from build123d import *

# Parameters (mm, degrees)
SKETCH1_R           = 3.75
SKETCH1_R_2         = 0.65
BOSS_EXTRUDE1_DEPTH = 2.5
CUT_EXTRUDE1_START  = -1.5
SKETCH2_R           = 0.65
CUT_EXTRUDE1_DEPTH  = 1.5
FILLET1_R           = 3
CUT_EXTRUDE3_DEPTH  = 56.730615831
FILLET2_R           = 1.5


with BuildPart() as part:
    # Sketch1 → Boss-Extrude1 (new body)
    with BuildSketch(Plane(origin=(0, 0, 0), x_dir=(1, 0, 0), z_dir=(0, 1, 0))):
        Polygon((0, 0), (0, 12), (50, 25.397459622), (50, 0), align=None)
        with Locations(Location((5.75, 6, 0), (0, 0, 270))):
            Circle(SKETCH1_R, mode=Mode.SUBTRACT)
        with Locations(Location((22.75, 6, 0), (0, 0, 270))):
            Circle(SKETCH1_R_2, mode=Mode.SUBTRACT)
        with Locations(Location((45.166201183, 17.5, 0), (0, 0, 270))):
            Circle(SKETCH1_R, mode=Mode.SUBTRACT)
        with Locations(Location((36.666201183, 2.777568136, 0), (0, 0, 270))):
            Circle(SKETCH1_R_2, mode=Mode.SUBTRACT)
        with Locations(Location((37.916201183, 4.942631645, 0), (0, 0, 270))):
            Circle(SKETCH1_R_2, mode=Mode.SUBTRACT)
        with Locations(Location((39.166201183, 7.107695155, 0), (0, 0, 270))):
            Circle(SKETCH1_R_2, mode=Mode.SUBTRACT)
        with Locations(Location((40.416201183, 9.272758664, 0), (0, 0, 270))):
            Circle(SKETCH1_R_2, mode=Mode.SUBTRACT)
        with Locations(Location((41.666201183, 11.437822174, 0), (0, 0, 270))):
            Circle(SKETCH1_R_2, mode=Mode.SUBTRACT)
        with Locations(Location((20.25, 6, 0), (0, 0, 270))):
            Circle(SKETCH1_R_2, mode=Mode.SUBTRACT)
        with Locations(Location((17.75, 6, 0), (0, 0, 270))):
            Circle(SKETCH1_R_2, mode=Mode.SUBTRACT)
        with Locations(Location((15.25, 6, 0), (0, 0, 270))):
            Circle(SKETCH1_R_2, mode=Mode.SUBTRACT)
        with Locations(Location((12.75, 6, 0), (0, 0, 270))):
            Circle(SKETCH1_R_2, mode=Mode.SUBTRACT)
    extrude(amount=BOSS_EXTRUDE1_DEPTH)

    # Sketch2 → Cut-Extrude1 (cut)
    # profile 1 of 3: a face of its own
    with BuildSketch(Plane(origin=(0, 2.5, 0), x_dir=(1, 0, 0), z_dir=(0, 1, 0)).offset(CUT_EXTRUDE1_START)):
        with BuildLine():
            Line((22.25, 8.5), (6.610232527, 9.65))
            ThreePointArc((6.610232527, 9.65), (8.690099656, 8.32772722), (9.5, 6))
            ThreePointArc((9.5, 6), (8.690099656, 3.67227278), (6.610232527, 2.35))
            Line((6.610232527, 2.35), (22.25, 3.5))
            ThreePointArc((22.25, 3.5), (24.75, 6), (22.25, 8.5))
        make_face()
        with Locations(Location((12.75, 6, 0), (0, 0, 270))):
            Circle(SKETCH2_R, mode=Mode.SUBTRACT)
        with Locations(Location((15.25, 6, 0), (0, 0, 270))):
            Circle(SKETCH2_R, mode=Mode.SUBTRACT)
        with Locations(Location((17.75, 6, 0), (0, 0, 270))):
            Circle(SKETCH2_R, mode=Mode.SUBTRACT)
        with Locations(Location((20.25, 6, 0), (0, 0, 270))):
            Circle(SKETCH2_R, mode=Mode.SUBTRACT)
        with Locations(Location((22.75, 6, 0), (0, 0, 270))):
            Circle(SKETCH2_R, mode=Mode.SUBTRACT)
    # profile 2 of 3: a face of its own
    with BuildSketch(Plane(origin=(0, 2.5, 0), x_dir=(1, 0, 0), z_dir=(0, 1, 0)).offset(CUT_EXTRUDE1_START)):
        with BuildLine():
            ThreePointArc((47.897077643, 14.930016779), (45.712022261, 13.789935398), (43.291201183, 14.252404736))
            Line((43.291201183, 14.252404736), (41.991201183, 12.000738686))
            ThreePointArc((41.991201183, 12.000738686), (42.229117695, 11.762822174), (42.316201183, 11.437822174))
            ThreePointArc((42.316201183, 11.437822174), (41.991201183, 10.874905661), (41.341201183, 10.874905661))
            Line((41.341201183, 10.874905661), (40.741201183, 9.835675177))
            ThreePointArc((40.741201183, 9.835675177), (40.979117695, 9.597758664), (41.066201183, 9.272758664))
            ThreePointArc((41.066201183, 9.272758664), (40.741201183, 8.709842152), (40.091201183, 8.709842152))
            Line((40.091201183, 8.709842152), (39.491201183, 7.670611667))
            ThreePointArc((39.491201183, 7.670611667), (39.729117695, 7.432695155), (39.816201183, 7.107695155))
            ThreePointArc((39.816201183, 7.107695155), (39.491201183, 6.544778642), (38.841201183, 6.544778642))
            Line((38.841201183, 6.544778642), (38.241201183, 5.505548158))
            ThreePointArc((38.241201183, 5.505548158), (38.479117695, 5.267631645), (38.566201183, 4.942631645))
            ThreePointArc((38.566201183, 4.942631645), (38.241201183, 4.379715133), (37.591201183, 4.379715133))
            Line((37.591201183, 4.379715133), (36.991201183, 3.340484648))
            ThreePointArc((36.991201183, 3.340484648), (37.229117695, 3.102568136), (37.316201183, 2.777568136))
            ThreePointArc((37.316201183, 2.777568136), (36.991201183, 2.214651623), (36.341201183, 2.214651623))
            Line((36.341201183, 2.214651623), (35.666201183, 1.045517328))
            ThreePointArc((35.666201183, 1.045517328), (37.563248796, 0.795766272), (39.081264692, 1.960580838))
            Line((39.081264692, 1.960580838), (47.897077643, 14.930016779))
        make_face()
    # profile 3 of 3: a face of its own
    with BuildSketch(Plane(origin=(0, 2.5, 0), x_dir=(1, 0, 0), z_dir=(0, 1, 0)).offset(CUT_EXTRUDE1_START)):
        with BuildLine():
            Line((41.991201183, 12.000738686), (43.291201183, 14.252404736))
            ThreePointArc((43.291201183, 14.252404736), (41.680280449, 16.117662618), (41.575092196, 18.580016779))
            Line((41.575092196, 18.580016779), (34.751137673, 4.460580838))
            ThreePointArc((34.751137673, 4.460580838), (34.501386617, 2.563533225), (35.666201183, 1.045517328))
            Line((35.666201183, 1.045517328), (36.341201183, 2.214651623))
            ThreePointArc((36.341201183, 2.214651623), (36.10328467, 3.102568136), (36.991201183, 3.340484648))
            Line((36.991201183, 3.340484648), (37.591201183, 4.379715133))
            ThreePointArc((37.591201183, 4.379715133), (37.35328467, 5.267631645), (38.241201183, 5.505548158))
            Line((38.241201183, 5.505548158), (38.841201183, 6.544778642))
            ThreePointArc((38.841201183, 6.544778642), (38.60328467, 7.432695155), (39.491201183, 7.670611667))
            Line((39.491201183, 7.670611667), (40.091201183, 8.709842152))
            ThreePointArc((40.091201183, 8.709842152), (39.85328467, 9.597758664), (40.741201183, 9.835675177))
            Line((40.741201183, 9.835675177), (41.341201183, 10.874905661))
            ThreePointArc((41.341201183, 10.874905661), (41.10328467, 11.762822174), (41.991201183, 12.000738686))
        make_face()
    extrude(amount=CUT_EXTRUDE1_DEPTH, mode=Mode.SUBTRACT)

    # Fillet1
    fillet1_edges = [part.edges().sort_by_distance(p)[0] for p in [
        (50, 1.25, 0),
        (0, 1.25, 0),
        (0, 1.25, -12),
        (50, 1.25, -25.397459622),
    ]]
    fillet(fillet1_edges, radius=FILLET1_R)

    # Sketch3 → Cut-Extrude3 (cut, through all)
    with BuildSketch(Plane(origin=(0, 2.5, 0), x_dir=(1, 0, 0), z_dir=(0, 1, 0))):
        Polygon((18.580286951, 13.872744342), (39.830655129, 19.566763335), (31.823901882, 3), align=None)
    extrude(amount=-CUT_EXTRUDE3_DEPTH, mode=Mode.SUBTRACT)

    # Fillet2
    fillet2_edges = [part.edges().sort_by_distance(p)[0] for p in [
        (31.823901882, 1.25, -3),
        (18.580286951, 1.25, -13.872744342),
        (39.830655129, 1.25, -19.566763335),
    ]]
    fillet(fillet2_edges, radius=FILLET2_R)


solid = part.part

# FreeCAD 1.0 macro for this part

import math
import FreeCAD as App
import Part
import Sketcher

V = App.Vector
Q = App.Units.Quantity


def edges_at(feature, points):
    """Names of the edges that pass closest to the given points."""
    edges = feature.Shape.Edges
    near = lambda p: min(range(len(edges)), key=lambda i: edges[i].distToShape(Part.Vertex(*p))[0])
    return sorted({f"Edge{near(p) + 1}" for p in points})

doc = App.newDocument("Part")
body = doc.addObject("PartDesign::Body", "Body")

# Sketch on XZ plane
sketch1 = body.newObject("Sketcher::SketchObject", "Sketch")
sketch1.AttachmentSupport = (doc.getObject("XZ_Plane"), [""])
sketch1.MapMode = "FlatFace"
sketch1.addGeometry(Part.LineSegment(V(0, -12, 0), V(0, 0, 0)), False)
sketch1.addGeometry(Part.LineSegment(V(0, 0, 0), V(50, 0, 0)), False)
sketch1.addGeometry(Part.LineSegment(V(50, 0, 0), V(50, -25.4, 0)), False)
sketch1.addGeometry(Part.LineSegment(V(50, -25.4, 0), V(0, -12, 0)), False)
sketch1.addGeometry(Part.Circle(V(37.9, -4.9, 0), V(0, 0, 1), 0.7), False)
sketch1.addGeometry(Part.Circle(V(36.7, -2.8, 0), V(0, 0, 1), 0.7), False)
sketch1.addGeometry(Part.Circle(V(39.2, -7.1, 0), V(0, 0, 1), 0.7), False)
sketch1.addGeometry(Part.Circle(V(40.4, -9.3, 0), V(0, 0, 1), 0.7), False)
sketch1.addGeometry(Part.Circle(V(41.7, -11.4, 0), V(0, 0, 1), 0.7), False)
sketch1.addGeometry(Part.Circle(V(22.8, -6, 0), V(0, 0, 1), 0.7), False)
sketch1.addGeometry(Part.Circle(V(20.2, -6, 0), V(0, 0, 1), 0.7), False)
sketch1.addGeometry(Part.Circle(V(17.8, -6, 0), V(0, 0, 1), 0.7), False)
sketch1.addGeometry(Part.Circle(V(15.2, -6, 0), V(0, 0, 1), 0.7), False)
sketch1.addGeometry(Part.Circle(V(12.8, -6, 0), V(0, 0, 1), 0.7), False)
sketch1.addGeometry(Part.Circle(V(5.8, -6, 0), V(0, 0, 1), 3.8), False)
sketch1.addGeometry(Part.Circle(V(45.2, -17.5, 0), V(0, 0, 1), 3.8), False)
sketch1.addConstraint(Sketcher.Constraint("Coincident", 0, 2, 1, 1))
sketch1.addConstraint(Sketcher.Constraint("Coincident", 1, 2, 2, 1))
sketch1.addConstraint(Sketcher.Constraint("Coincident", 2, 2, 3, 1))
sketch1.addConstraint(Sketcher.Constraint("Coincident", 3, 2, 0, 1))
sketch1.addConstraint(Sketcher.Constraint("Vertical", 0))
sketch1.addConstraint(Sketcher.Constraint("Horizontal", 1))
sketch1.addConstraint(Sketcher.Constraint("Vertical", 2))
sketch1.addConstraint(Sketcher.Constraint("Coincident", 0, 2, -1, 1))
sketch1.addConstraint(Sketcher.Constraint("Equal", 4, 5))
sketch1.addConstraint(Sketcher.Constraint("Equal", 5, 6))
sketch1.addConstraint(Sketcher.Constraint("Equal", 6, 7))
sketch1.addConstraint(Sketcher.Constraint("Equal", 7, 8))
sketch1.addConstraint(Sketcher.Constraint("Equal", 8, 9))
sketch1.addConstraint(Sketcher.Constraint("Equal", 9, 10))
sketch1.addConstraint(Sketcher.Constraint("Equal", 10, 11))
sketch1.addConstraint(Sketcher.Constraint("Equal", 11, 12))
sketch1.addConstraint(Sketcher.Constraint("Equal", 12, 13))
sketch1.addConstraint(Sketcher.Constraint("Equal", 14, 15))
sketch1.addConstraint(Sketcher.Constraint("Horizontal", 9, 3, 10, 3))
sketch1.addConstraint(Sketcher.Constraint("Horizontal", 10, 3, 11, 3))
sketch1.addConstraint(Sketcher.Constraint("Horizontal", 11, 3, 12, 3))
sketch1.addConstraint(Sketcher.Constraint("Horizontal", 12, 3, 13, 3))
sketch1.addConstraint(Sketcher.Constraint("Horizontal", 13, 3, 14, 3))
sketch1.addConstraint(Sketcher.Constraint("Diameter", 4, 1.3))
sketch1.addConstraint(Sketcher.Constraint("Diameter", 14, 7.5))
sketch1.addConstraint(Sketcher.Constraint("DistanceX", 1, 1, 1, 2, 50.0))
sketch1.addConstraint(Sketcher.Constraint("DistanceY", 0, 1, 0, 2, 12.0))
sketch1.addConstraint(Sketcher.Constraint("Angle", 3, Q("165 deg")))
sketch1.addConstraint(Sketcher.Constraint("DistanceY", 9, 3, -1, 1, 6.0))
sketch1.addConstraint(Sketcher.Constraint("DistanceX", 5, 3, 8, 3, 5.0))
sketch1.addConstraint(Sketcher.Constraint("DistanceX", 11, 3, 9, 3, 5.0))
sketch1.addConstraint(Sketcher.Constraint("DistanceX", 12, 3, 10, 3, 5.0))
sketch1.addConstraint(Sketcher.Constraint("DistanceX", 13, 3, 11, 3, 5.0))
sketch1.addConstraint(Sketcher.Constraint("DistanceX", 14, 3, 13, 3, 7.0))
sketch1.addConstraint(Sketcher.Constraint("DistanceX", 6, 3, 15, 3, 6.0))
sketch1.addConstraint(Sketcher.Constraint("DistanceY", 15, 3, -1, 1, 17.5))
sketch1.addConstraint(Sketcher.Constraint("DistanceX", 5, 3, 6, 3, 2.5))
sketch1.addConstraint(Sketcher.Constraint("DistanceX", 4, 3, 7, 3, 2.5))
sketch1.addConstraint(Sketcher.Constraint("DistanceX", 10, 3, 9, 3, 2.5))
sketch1.addConstraint(Sketcher.Constraint("DistanceX", -1, 1, 9, 3, 22.75))
sketch1.addConstraint(Sketcher.Constraint("DistanceX", 5, 3, 4, 3, 1.25))
sketch1.addConstraint(Sketcher.Constraint("DistanceX", -1, 1, 4, 3, 37.916201))
sketch1.addConstraint(Sketcher.Constraint("DistanceY", 2, 2, 7, 3, 16.124701))
sketch1.addConstraint(Sketcher.Constraint("DistanceY", 4, 3, -1, 1, 4.942632))
sketch1.addConstraint(Sketcher.Constraint("DistanceY", 5, 3, -1, 1, 2.777568))
sketch1.addConstraint(Sketcher.Constraint("DistanceY", 8, 3, 4, 3, 6.495191))
sketch1.addConstraint(Sketcher.Constraint("DistanceY", 6, 3, -1, 1, 7.107695))
pad1 = body.newObject("PartDesign::Pad", "Pad")
pad1.Profile = sketch1
pad1.Length = 2.5
pad1.Reversed = True

# Sketch on XZ plane
sketch2 = body.newObject("Sketcher::SketchObject", "Sketch001")
sketch2.AttachmentSupport = (doc.getObject("XZ_Plane"), [""])
sketch2.MapMode = "FlatFace"
sketch2.AttachmentOffset = App.Placement(V(0, 0, -1), App.Rotation())
sketch2.addGeometry(Part.LineSegment(V(22.2, -8.5, 0), V(6.6, -9.7, 0)), False)
sketch2.addGeometry(Part.ArcOfCircle(Part.Circle(V(5.7, -6, 0), V(0, 0, 1), 3.8), math.radians(-77), math.radians(0)), False)
sketch2.addGeometry(Part.ArcOfCircle(Part.Circle(V(5.7, -6, 0), V(0, 0, 1), 3.8), math.radians(0), math.radians(77)), False)
sketch2.addGeometry(Part.LineSegment(V(6.6, -2.4, 0), V(22.2, -3.5, 0)), False)
sketch2.addGeometry(Part.ArcOfCircle(Part.Circle(V(22.2, -6, 0), V(0, 0, 1), 2.5), math.radians(-90), math.radians(90)), False)
sketch2.addGeometry(Part.Circle(V(12.8, -6, 0), V(0, 0, 1), 0.7), False)
sketch2.addGeometry(Part.Circle(V(15.2, -6, 0), V(0, 0, 1), 0.7), False)
sketch2.addGeometry(Part.Circle(V(17.8, -6, 0), V(0, 0, 1), 0.7), False)
sketch2.addGeometry(Part.Circle(V(20.2, -6, 0), V(0, 0, 1), 0.7), False)
sketch2.addGeometry(Part.Circle(V(22.8, -6, 0), V(0, 0, 1), 0.7), False)
sketch2.addGeometry(Part.ArcOfCircle(Part.Circle(V(45.2, -17.5, 0), V(0, 0, 1), 3.7), math.radians(43), math.radians(120)), False)
sketch2.addGeometry(Part.ArcOfCircle(Part.Circle(V(45.2, -17.5, 0), V(0, 0, 1), 3.7), math.radians(120), math.radians(197)), False)
sketch2.addGeometry(Part.LineSegment(V(41.6, -18.6, 0), V(34.8, -4.5, 0)), False)
sketch2.addGeometry(Part.ArcOfCircle(Part.Circle(V(36.9, -3.2, 0), V(0, 0, 1), 2.5), math.radians(120), math.radians(210)), False)
sketch2.addGeometry(Part.ArcOfCircle(Part.Circle(V(36.9, -3.2, 0), V(0, 0, 1), 2.5), math.radians(30), math.radians(120)), False)
sketch2.addGeometry(Part.LineSegment(V(39.1, -2, 0), V(47.9, -14.9, 0)), False)
sketch2.addGeometry(Part.ArcOfCircle(Part.Circle(V(41.7, -11.4, 0), V(0, 0, 1), 0.7), math.radians(-60), math.radians(0)), False)
sketch2.addGeometry(Part.ArcOfCircle(Part.Circle(V(41.7, -11.4, 0), V(0, 0, 1), 0.7), math.radians(0), math.radians(120)), False)
sketch2.addGeometry(Part.ArcOfCircle(Part.Circle(V(41.7, -11.4, 0), V(0, 0, 1), 0.7), math.radians(120), math.radians(300)), False)
sketch2.addGeometry(Part.ArcOfCircle(Part.Circle(V(40.4, -9.3, 0), V(0, 0, 1), 0.7), math.radians(-60), math.radians(0)), False)
sketch2.addGeometry(Part.ArcOfCircle(Part.Circle(V(40.4, -9.3, 0), V(0, 0, 1), 0.7), math.radians(0), math.radians(120)), False)
sketch2.addGeometry(Part.ArcOfCircle(Part.Circle(V(40.4, -9.3, 0), V(0, 0, 1), 0.7), math.radians(120), math.radians(300)), False)
sketch2.addGeometry(Part.ArcOfCircle(Part.Circle(V(39.2, -7.1, 0), V(0, 0, 1), 0.7), math.radians(-60), math.radians(0)), False)
sketch2.addGeometry(Part.ArcOfCircle(Part.Circle(V(39.2, -7.1, 0), V(0, 0, 1), 0.7), math.radians(0), math.radians(120)), False)
sketch2.addGeometry(Part.ArcOfCircle(Part.Circle(V(39.2, -7.1, 0), V(0, 0, 1), 0.7), math.radians(120), math.radians(300)), False)
sketch2.addGeometry(Part.ArcOfCircle(Part.Circle(V(37.9, -4.9, 0), V(0, 0, 1), 0.7), math.radians(-60), math.radians(0)), False)
sketch2.addGeometry(Part.ArcOfCircle(Part.Circle(V(37.9, -4.9, 0), V(0, 0, 1), 0.7), math.radians(0), math.radians(120)), False)
sketch2.addGeometry(Part.ArcOfCircle(Part.Circle(V(37.9, -4.9, 0), V(0, 0, 1), 0.7), math.radians(120), math.radians(300)), False)
sketch2.addGeometry(Part.ArcOfCircle(Part.Circle(V(36.7, -2.8, 0), V(0, 0, 1), 0.7), math.radians(-60), math.radians(0)), False)
sketch2.addGeometry(Part.ArcOfCircle(Part.Circle(V(36.7, -2.8, 0), V(0, 0, 1), 0.7), math.radians(0), math.radians(120)), False)
sketch2.addGeometry(Part.ArcOfCircle(Part.Circle(V(36.7, -2.8, 0), V(0, 0, 1), 0.7), math.radians(120), math.radians(300)), False)
sketch2.addConstraint(Sketcher.Constraint("Coincident", 0, 2, 1, 1))
sketch2.addConstraint(Sketcher.Constraint("Tangent", 1, 2, 2, 1))
sketch2.addConstraint(Sketcher.Constraint("Coincident", 2, 2, 3, 1))
sketch2.addConstraint(Sketcher.Constraint("Coincident", 3, 2, 4, 2))
sketch2.addConstraint(Sketcher.Constraint("Coincident", 4, 1, 0, 1))
sketch2.addConstraint(Sketcher.Constraint("Tangent", 10, 2, 11, 1))
sketch2.addConstraint(Sketcher.Constraint("Coincident", 11, 2, 12, 1))
sketch2.addConstraint(Sketcher.Constraint("Coincident", 12, 2, 13, 2))
sketch2.addConstraint(Sketcher.Constraint("Tangent", 13, 1, 14, 2))
sketch2.addConstraint(Sketcher.Constraint("Coincident", 14, 1, 15, 1))
sketch2.addConstraint(Sketcher.Constraint("Coincident", 15, 2, 10, 1))
sketch2.addConstraint(Sketcher.Constraint("Tangent", 16, 2, 17, 1))
sketch2.addConstraint(Sketcher.Constraint("Tangent", 17, 2, 18, 1))
sketch2.addConstraint(Sketcher.Constraint("Tangent", 18, 2, 16, 1))
sketch2.addConstraint(Sketcher.Constraint("Tangent", 19, 2, 20, 1))
sketch2.addConstraint(Sketcher.Constraint("Tangent", 20, 2, 21, 1))
sketch2.addConstraint(Sketcher.Constraint("Tangent", 21, 2, 19, 1))
sketch2.addConstraint(Sketcher.Constraint("Tangent", 22, 2, 23, 1))
sketch2.addConstraint(Sketcher.Constraint("Tangent", 23, 2, 24, 1))
sketch2.addConstraint(Sketcher.Constraint("Tangent", 24, 2, 22, 1))
sketch2.addConstraint(Sketcher.Constraint("Tangent", 25, 2, 26, 1))
sketch2.addConstraint(Sketcher.Constraint("Tangent", 26, 2, 27, 1))
sketch2.addConstraint(Sketcher.Constraint("Tangent", 27, 2, 25, 1))
sketch2.addConstraint(Sketcher.Constraint("Tangent", 28, 2, 29, 1))
sketch2.addConstraint(Sketcher.Constraint("Tangent", 29, 2, 30, 1))
sketch2.addConstraint(Sketcher.Constraint("Tangent", 30, 2, 28, 1))
sketch2.addConstraint(Sketcher.Constraint("Equal", 1, 2))
sketch2.addConstraint(Sketcher.Constraint("Equal", 5, 6))
sketch2.addConstraint(Sketcher.Constraint("Equal", 6, 7))
sketch2.addConstraint(Sketcher.Constraint("Equal", 7, 8))
sketch2.addConstraint(Sketcher.Constraint("Equal", 8, 9))
sketch2.addConstraint(Sketcher.Constraint("Equal", 2, 10))
sketch2.addConstraint(Sketcher.Constraint("Equal", 10, 11))
sketch2.addConstraint(Sketcher.Constraint("Equal", 4, 13))
sketch2.addConstraint(Sketcher.Constraint("Equal", 13, 14))
sketch2.addConstraint(Sketcher.Constraint("Equal", 9, 16))
sketch2.addConstraint(Sketcher.Constraint("Equal", 18, 19))
sketch2.addConstraint(Sketcher.Constraint("Equal", 21, 22))
sketch2.addConstraint(Sketcher.Constraint("Equal", 24, 25))
sketch2.addConstraint(Sketcher.Constraint("Equal", 27, 28))
sketch2.addConstraint(Sketcher.Constraint("Horizontal", 2, 3, 4, 3))
sketch2.addConstraint(Sketcher.Constraint("Horizontal", 4, 3, 5, 3))
sketch2.addConstraint(Sketcher.Constraint("Horizontal", 5, 3, 6, 3))
sketch2.addConstraint(Sketcher.Constraint("Horizontal", 6, 3, 7, 3))
sketch2.addConstraint(Sketcher.Constraint("Horizontal", 7, 3, 8, 3))
sketch2.addConstraint(Sketcher.Constraint("Horizontal", 8, 3, 9, 3))
sketch2.addConstraint(Sketcher.Constraint("Horizontal", 9, 3, 1, 2))
sketch2.addConstraint(Sketcher.Constraint("Horizontal", 18, 3, 16, 2))
sketch2.addConstraint(Sketcher.Constraint("Horizontal", 21, 3, 19, 2))
sketch2.addConstraint(Sketcher.Constraint("Horizontal", 24, 3, 22, 2))
sketch2.addConstraint(Sketcher.Constraint("Horizontal", 27, 3, 25, 2))
sketch2.addConstraint(Sketcher.Constraint("Horizontal", 30, 3, 28, 2))
sketch2.addConstraint(Sketcher.Constraint("Vertical", 0, 2, 2, 2))
sketch2.addConstraint(Sketcher.Constraint("Vertical", 4, 3, 3, 2))
sketch2.addConstraint(Sketcher.Constraint("Vertical", 3, 2, 4, 1))
sketch2.addConstraint(Sketcher.Constraint("Equal", 3, 12))
sketch2.addConstraint(Sketcher.Constraint("Equal", 12, 15))
sketch2.addConstraint(Sketcher.Constraint("Diameter", 5, 1.3))
sketch2.addConstraint(Sketcher.Constraint("Radius", 4, 2.5))
sketch2.addConstraint(Sketcher.Constraint("Radius", 1, 3.75))
sketch2.addConstraint(Sketcher.Constraint("DistanceY", 1, 3, -1, 1, 6.0))
sketch2.addConstraint(Sketcher.Constraint("DistanceX", 1, 3, 5, 3, 7.0))
sketch2.addConstraint(Sketcher.Constraint("DistanceX", 6, 3, 4, 3, 7.0))
sketch2.addConstraint(Sketcher.Constraint("DistanceX", 5, 3, 7, 3, 5.0))
sketch2.addConstraint(Sketcher.Constraint("DistanceX", 8, 3, 4, 3, 2.0))
sketch2.addConstraint(Sketcher.Constraint("DistanceX", 7, 3, 9, 3, 5.0))
sketch2.addConstraint(Sketcher.Constraint("DistanceX", 13, 3, 25, 3, 1.0))
sketch2.addConstraint(Sketcher.Constraint("DistanceX", 13, 1, 28, 3, 1.0))
sketch2.addConstraint(Sketcher.Constraint("DistanceY", 10, 3, -1, 1, 17.5))
sketch2.addConstraint(Sketcher.Constraint("DistanceX", -1, 1, 1, 2, 9.5))
sketch2.addConstraint(Sketcher.Constraint("DistanceX", 1, 3, 4, 3, 16.5))
sketch2.addConstraint(Sketcher.Constraint("DistanceX", 16, 3, 10, 3, 3.5))
sketch2.addConstraint(Sketcher.Constraint("DistanceX", 13, 3, 19, 3, 3.5))
sketch2.addConstraint(Sketcher.Constraint("DistanceY", 0, 2, 2, 2, 7.3))
sketch2.addConstraint(Sketcher.Constraint("DistanceX", 21, 3, 16, 2, 1.9))
sketch2.addConstraint(Sketcher.Constraint("DistanceX", 21, 2, 17, 2, 0.6))
sketch2.addConstraint(Sketcher.Constraint("DistanceX", 22, 2, 19, 3, 0.6))
sketch2.addConstraint(Sketcher.Constraint("DistanceX", 24, 2, 20, 2, 0.6))
sketch2.addConstraint(Sketcher.Constraint("DistanceX", 27, 2, 23, 2, 0.6))
sketch2.addConstraint(Sketcher.Constraint("DistanceX", 14, 3, 28, 2, 0.4))
sketch2.addConstraint(Sketcher.Constraint("DistanceY", 12, 2, 13, 3, 1.25))
sketch2.addConstraint(Sketcher.Constraint("DistanceY", 14, 3, 14, 1, 1.25))
sketch2.addConstraint(Sketcher.Constraint("DistanceX", 17, 2, 18, 2, 0.65))
sketch2.addConstraint(Sketcher.Constraint("DistanceX", 18, 3, 10, 2, 1.625))
sketch2.addConstraint(Sketcher.Constraint("DistanceX", 17, 2, 16, 3, 0.325))
sketch2.addConstraint(Sketcher.Constraint("DistanceX", 20, 2, 19, 3, 0.325))
sketch2.addConstraint(Sketcher.Constraint("DistanceX", 23, 2, 22, 3, 0.325))
sketch2.addConstraint(Sketcher.Constraint("DistanceX", 26, 2, 25, 3, 0.325))
sketch2.addConstraint(Sketcher.Constraint("DistanceX", 29, 2, 28, 3, 0.325))
sketch2.addConstraint(Sketcher.Constraint("DistanceX", 13, 3, 30, 2, 0.075))
sketch2.addConstraint(Sketcher.Constraint("DistanceX", -1, 1, 10, 3, 45.166201))
sketch2.addConstraint(Sketcher.Constraint("DistanceY", 13, 3, -1, 1, 3.210581))
sketch2.addConstraint(Sketcher.Constraint("DistanceY", 19, 3, -1, 1, 9.272759))
sketch2.addConstraint(Sketcher.Constraint("DistanceY", 25, 3, -1, 1, 4.942632))
sketch2.addConstraint(Sketcher.Constraint("DistanceY", 28, 3, -1, 1, 2.777568))
sketch2.addConstraint(Sketcher.Constraint("DistanceY", 18, 2, -1, 1, 12.000739))
sketch2.addConstraint(Sketcher.Constraint("DistanceY", 23, 2, -1, 1, 6.544779))
pocket1 = body.newObject("PartDesign::Pocket", "Pocket")
pocket1.Profile = sketch2
pocket1.Length = 1.5
doc.recompute()

fillet = body.newObject("PartDesign::Fillet", "Fillet")
fillet.Base = (pocket1, edges_at(pocket1, [
    (50, 1.25, 0),
    (0, 1.25, 0),
    (0, 1.25, -12),
    (50, 1.25, -25.397),
]))
fillet.Radius = 3

# Sketch on XZ plane
sketch3 = body.newObject("Sketcher::SketchObject", "Sketch002")
sketch3.AttachmentSupport = (doc.getObject("XZ_Plane"), [""])
sketch3.MapMode = "FlatFace"
sketch3.AttachmentOffset = App.Placement(V(0, 0, -2.5), App.Rotation())
sketch3.addGeometry(Part.LineSegment(V(40, -20, 0), V(19, -14, 0)), False)
sketch3.addGeometry(Part.LineSegment(V(19, -14, 0), V(32, -3, 0)), False)
sketch3.addGeometry(Part.LineSegment(V(32, -3, 0), V(40, -20, 0)), False)
sketch3.addConstraint(Sketcher.Constraint("Coincident", 0, 2, 1, 1))
sketch3.addConstraint(Sketcher.Constraint("Coincident", 1, 2, 2, 1))
sketch3.addConstraint(Sketcher.Constraint("Coincident", 2, 2, 0, 1))
sketch3.addConstraint(Sketcher.Constraint("Angle", 0, Q("165 deg")))
sketch3.addConstraint(Sketcher.Constraint("Distance", 0, 22.0))
sketch3.addConstraint(Sketcher.Constraint("DistanceY", 1, 2, -1, 1, 3.0))
sketch3.addConstraint(Sketcher.Constraint("DistanceX", -1, 1, 1, 2, 31.823902))
sketch3.addConstraint(Sketcher.Constraint("Distance", 1, 17.135049))
sketch3.addConstraint(Sketcher.Constraint("Distance", 2, 18.400156))
pocket2 = body.newObject("PartDesign::Pocket", "Pocket001")
pocket2.Profile = sketch3
pocket2.Type = "ThroughAll"
pocket2.Reversed = True
doc.recompute()

fillet2 = body.newObject("PartDesign::Fillet", "Fillet001")
fillet2.Base = (pocket2, edges_at(pocket2, [(31.824, 1.25, -3), (18.58, 1.25, -13.873), (39.831, 1.25, -19.567)]))
fillet2.Radius = 1.5

doc.recompute()
